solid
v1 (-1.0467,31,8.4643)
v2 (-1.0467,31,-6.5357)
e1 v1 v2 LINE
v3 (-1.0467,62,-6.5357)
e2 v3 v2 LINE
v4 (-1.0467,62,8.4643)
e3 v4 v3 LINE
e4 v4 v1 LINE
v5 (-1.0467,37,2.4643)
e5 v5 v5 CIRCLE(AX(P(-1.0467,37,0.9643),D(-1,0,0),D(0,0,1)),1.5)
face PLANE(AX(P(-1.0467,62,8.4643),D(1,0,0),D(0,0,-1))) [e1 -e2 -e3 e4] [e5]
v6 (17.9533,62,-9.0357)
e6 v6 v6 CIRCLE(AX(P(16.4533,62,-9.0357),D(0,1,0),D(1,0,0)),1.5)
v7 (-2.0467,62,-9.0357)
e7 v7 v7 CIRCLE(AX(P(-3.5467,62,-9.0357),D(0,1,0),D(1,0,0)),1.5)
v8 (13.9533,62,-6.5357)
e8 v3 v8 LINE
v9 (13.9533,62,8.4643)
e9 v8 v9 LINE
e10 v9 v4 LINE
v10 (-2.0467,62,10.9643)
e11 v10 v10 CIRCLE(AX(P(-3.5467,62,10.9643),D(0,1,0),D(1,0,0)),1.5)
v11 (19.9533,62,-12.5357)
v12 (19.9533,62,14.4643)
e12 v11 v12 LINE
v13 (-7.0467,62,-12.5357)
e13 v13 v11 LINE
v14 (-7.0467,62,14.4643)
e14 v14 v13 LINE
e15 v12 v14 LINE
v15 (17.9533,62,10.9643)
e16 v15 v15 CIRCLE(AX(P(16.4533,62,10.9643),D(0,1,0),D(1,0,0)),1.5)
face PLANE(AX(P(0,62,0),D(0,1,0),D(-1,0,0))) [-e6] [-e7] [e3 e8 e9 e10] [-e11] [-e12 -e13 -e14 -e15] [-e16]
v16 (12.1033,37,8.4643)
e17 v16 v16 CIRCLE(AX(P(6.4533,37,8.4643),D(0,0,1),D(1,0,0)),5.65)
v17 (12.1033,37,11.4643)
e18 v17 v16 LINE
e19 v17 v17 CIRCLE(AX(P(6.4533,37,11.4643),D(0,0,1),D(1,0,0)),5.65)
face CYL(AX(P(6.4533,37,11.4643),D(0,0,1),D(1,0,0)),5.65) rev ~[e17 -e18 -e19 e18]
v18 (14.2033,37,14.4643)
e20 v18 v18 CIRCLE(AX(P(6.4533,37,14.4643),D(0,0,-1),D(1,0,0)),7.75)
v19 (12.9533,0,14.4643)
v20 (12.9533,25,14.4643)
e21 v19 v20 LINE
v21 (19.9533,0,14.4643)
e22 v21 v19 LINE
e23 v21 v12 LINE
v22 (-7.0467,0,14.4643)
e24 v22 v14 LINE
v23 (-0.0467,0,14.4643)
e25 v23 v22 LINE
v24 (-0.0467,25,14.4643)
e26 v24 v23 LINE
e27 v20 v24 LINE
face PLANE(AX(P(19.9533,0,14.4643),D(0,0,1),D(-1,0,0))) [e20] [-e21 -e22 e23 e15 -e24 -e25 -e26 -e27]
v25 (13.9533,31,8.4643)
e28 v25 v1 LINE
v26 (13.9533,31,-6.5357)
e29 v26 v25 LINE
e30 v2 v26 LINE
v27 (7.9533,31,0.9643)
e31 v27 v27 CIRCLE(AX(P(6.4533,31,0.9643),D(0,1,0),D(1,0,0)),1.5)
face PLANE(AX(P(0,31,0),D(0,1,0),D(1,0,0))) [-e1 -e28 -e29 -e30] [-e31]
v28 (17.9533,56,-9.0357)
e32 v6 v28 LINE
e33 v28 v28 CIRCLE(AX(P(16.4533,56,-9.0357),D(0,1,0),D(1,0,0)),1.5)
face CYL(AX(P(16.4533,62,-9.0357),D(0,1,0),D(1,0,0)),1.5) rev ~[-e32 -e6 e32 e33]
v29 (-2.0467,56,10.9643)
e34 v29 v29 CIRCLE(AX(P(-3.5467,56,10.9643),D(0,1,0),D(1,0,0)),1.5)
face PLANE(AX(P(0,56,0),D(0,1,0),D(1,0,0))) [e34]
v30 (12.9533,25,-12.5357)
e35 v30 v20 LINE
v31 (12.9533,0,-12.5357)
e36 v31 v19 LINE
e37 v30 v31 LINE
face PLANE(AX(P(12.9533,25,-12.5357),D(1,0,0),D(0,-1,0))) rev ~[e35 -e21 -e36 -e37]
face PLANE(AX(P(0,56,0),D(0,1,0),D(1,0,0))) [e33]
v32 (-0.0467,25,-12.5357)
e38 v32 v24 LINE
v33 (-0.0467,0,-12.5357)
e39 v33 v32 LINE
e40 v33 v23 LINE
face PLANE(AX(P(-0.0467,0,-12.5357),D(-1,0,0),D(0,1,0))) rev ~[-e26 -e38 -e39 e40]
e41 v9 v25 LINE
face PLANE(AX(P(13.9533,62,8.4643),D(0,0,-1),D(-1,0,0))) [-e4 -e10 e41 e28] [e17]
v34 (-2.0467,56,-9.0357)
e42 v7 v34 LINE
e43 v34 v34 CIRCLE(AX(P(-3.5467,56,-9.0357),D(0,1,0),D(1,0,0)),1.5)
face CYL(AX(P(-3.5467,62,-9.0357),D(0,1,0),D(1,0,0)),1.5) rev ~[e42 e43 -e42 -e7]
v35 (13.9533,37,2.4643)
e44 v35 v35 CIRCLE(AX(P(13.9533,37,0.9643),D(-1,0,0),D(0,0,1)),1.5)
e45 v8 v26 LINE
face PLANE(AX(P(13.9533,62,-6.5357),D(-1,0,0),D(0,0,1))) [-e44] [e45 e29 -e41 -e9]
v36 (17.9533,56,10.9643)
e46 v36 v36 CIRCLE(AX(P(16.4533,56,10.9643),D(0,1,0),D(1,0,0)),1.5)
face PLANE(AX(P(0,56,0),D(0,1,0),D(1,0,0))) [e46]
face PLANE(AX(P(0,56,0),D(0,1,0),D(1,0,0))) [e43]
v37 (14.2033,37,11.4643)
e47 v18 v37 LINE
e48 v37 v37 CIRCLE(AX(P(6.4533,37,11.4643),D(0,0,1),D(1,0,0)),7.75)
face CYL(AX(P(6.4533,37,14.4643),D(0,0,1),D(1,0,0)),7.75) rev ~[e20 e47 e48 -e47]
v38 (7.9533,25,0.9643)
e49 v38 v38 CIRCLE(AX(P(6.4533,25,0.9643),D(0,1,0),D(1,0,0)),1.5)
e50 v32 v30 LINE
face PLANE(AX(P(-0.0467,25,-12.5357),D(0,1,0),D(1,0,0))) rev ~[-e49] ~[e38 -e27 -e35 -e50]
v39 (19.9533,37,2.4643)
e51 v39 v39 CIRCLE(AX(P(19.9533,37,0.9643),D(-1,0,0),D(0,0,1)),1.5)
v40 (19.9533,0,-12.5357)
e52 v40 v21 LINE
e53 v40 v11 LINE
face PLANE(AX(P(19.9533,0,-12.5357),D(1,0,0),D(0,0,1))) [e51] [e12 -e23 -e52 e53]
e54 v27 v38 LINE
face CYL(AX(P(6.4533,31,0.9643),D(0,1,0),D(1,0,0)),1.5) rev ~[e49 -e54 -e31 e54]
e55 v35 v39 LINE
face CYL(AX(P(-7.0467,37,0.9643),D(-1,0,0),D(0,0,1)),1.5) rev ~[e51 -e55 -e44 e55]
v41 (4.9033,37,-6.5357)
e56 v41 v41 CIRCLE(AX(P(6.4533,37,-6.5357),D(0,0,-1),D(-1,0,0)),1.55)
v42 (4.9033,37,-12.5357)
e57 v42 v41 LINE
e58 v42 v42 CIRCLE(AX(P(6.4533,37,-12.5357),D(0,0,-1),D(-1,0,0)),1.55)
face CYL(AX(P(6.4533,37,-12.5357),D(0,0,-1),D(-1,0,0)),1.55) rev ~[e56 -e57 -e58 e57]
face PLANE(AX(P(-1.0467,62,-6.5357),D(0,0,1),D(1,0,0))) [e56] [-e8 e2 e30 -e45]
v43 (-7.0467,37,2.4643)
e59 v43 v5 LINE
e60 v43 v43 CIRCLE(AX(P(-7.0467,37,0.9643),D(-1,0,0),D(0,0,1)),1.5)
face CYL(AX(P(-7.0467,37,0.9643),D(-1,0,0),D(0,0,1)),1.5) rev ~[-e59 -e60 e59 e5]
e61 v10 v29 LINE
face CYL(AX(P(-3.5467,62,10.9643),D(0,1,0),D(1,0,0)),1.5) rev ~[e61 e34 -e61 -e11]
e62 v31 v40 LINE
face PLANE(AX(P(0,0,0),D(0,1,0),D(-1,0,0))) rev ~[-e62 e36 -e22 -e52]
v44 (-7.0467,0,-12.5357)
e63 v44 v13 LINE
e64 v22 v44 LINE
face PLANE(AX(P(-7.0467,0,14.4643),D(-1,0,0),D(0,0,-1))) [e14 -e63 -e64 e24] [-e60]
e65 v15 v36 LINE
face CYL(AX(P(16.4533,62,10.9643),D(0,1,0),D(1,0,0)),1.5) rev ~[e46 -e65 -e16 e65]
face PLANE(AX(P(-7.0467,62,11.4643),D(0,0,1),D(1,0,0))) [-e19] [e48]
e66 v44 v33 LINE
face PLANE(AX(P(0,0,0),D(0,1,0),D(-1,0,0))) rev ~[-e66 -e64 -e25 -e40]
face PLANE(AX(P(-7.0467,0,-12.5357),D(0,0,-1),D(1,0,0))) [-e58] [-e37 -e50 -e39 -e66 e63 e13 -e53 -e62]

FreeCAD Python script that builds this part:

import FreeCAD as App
import Part
import Sketcher
from FreeCAD import Vector
Q = App.Units.Quantity


def add_polygon(sketch, points):
    """Adds a closed chain of lines whose ends are joined by coincident constraints."""
    first, n = sketch.GeometryCount, len(points)
    for a, b in zip(points, points[1:] + points[:1]):
        sketch.addGeometry(Part.LineSegment(App.Vector(*a, 0), App.Vector(*b, 0)), False)
    for i in range(n):
        sketch.addConstraint(Sketcher.Constraint("Coincident", first + i, 2, first + (i + 1) % n, 1))

doc = App.newDocument("Part")
body = doc.addObject("PartDesign::Body", "Body")

# Sketch on XZ plane
sketch1 = body.newObject("Sketcher::SketchObject", "Sketch")
sketch1.AttachmentSupport = (doc.getObject("XZ_Plane"), [""])
sketch1.MapMode = "FlatFace"
add_polygon(sketch1, [(-7.0467, 14.4643), (19.9533, 14.4643), (19.9533, -12.5357), (-7.0467, -12.5357)])  # lines 0-3
sketch1.addConstraint([
    Sketcher.Constraint("Horizontal", 0),
    Sketcher.Constraint("Vertical", 1),
    Sketcher.Constraint("Horizontal", 2),
    Sketcher.Constraint("Vertical", 3),
    Sketcher.Constraint("Equal", 2, 1),
    Sketcher.Constraint("DistanceX", 0, 1, 0, 2, Q("27 mm")),
    Sketcher.Constraint("DistanceX", -1, 1, 0, 2, Q("19.9533 mm")),
    Sketcher.Constraint("DistanceY", -1, 1, 0, 2, Q("14.4643 mm")),
])
pad1 = body.newObject("PartDesign::Pad", "Pad")
pad1.Profile = sketch1
pad1.Length = 62
pad1.Reversed = True

# Sketch on XZ plane
sketch2 = body.newObject("Sketcher::SketchObject", "Sketch001")
sketch2.AttachmentSupport = (doc.getObject("XZ_Plane"), [""])
sketch2.MapMode = "FlatFace"
sketch2.AttachmentOffset = App.Placement(Vector(0, 0, -62), App.Rotation())
add_polygon(sketch2, [(13.9533, -6.5357), (-1.0467, -6.5357), (-1.0467, 8.4643), (13.9533, 8.4643)])  # lines 0-3
sketch2.addConstraint([
    Sketcher.Constraint("Horizontal", 0),
    Sketcher.Constraint("Vertical", 1),
    Sketcher.Constraint("Horizontal", 2),
    Sketcher.Constraint("Vertical", 3),
    Sketcher.Constraint("Equal", 2, 1),
    Sketcher.Constraint("DistanceX", 0, 2, 0, 1, Q("15 mm")),
    Sketcher.Constraint("DistanceX", 0, 2, -1, 1, Q("1.0467 mm")),
    Sketcher.Constraint("DistanceY", 0, 2, -1, 1, Q("6.5357 mm")),
])
pocket1 = body.newObject("PartDesign::Pocket", "Pocket")
pocket1.Profile = sketch2
pocket1.Length = 31
pocket1.Reversed = True

# Sketch on XY plane
sketch3 = body.newObject("Sketcher::SketchObject", "Sketch002")
sketch3.AttachmentSupport = (doc.getObject("XY_Plane"), [""])
sketch3.MapMode = "FlatFace"
sketch3.AttachmentOffset = App.Placement(Vector(0, 0, -12.5357), App.Rotation())
add_polygon(sketch3, [(12.9533, 0), (-0.0467, 0), (-0.0467, 25), (12.9533, 25)])  # lines 0-3
sketch3.addConstraint([
    Sketcher.Constraint("Horizontal", 0),
    Sketcher.Constraint("Vertical", 1),
    Sketcher.Constraint("Horizontal", 2),
    Sketcher.Constraint("Vertical", 3),
    Sketcher.Constraint("PointOnObject", 0, 2, -1),
    Sketcher.Constraint("DistanceY", 1, 1, 1, 2, Q("25 mm")),
    Sketcher.Constraint("DistanceX", 0, 2, 0, 1, Q("13 mm")),
    Sketcher.Constraint("DistanceX", 0, 2, -1, 1, Q("0.0467 mm")),
])
pocket2 = body.newObject("PartDesign::Pocket", "Pocket001")
pocket2.Profile = sketch3
pocket2.Length = 30
pocket2.Reversed = True

# Sketch on XY plane
sketch4 = body.newObject("Sketcher::SketchObject", "Sketch003")
sketch4.AttachmentSupport = (doc.getObject("XY_Plane"), [""])
sketch4.MapMode = "FlatFace"
sketch4.AttachmentOffset = App.Placement(Vector(0, 0, -12.5357), App.Rotation())
sketch4.addGeometry(Part.Circle(Vector(6.4533, 37, 0), Vector(0, 0, 1), 1.55), False)
sketch4.addConstraint([
    Sketcher.Constraint("Diameter", 0, Q("3.1 mm")),
    Sketcher.Constraint("DistanceY", -1, 1, 0, 3, Q("37 mm")),
    Sketcher.Constraint("DistanceX", -1, 1, 0, 3, Q("6.4533 mm")),
])
pocket3 = body.newObject("PartDesign::Pocket", "Pocket002")
pocket3.Profile = sketch4
pocket3.Length = 7
pocket3.Reversed = True

# Sketch on XY plane
sketch5 = body.newObject("Sketcher::SketchObject", "Sketch004")
sketch5.AttachmentSupport = (doc.getObject("XY_Plane"), [""])
sketch5.MapMode = "FlatFace"
sketch5.AttachmentOffset = App.Placement(Vector(0, 0, 14.4643), App.Rotation())
sketch5.addGeometry(Part.Circle(Vector(6.4533, 37, 0), Vector(0, 0, 1), 7.75), False)
sketch5.addConstraint([
    Sketcher.Constraint("Diameter", 0, Q("15.5 mm")),
    Sketcher.Constraint("DistanceY", -1, 1, 0, 3, Q("37 mm")),
    Sketcher.Constraint("DistanceX", -1, 1, 0, 3, Q("6.4533 mm")),
])
pocket4 = body.newObject("PartDesign::Pocket", "Pocket003")
pocket4.Profile = sketch5
pocket4.Length = 3

# Sketch on XY plane
sketch6 = body.newObject("Sketcher::SketchObject", "Sketch005")
sketch6.AttachmentSupport = (doc.getObject("XY_Plane"), [""])
sketch6.MapMode = "FlatFace"
sketch6.AttachmentOffset = App.Placement(Vector(0, 0, 11.4643), App.Rotation())
sketch6.addGeometry(Part.Circle(Vector(6.4533, 37, 0), Vector(0, 0, 1), 5.65), False)
sketch6.addConstraint([
    Sketcher.Constraint("Diameter", 0, Q("11.3 mm")),
    Sketcher.Constraint("DistanceY", -1, 1, 0, 3, Q("37 mm")),
    Sketcher.Constraint("DistanceX", -1, 1, 0, 3, Q("6.4533 mm")),
])
pocket5 = body.newObject("PartDesign::Pocket", "Pocket004")
pocket5.Profile = sketch6
pocket5.Length = 3

# Sketch on YZ plane
sketch7 = body.newObject("Sketcher::SketchObject", "Sketch006")
sketch7.AttachmentSupport = (doc.getObject("YZ_Plane"), [""])
sketch7.MapMode = "FlatFace"
sketch7.AttachmentOffset = App.Placement(Vector(0, 0, -7.0467), App.Rotation())
sketch7.addGeometry(Part.Circle(Vector(37, 0.9643, 0), Vector(0, 0, 1), 1.5), False)
sketch7.addConstraint([
    Sketcher.Constraint("Diameter", 0, Q("3 mm")),
    Sketcher.Constraint("DistanceX", -1, 1, 0, 3, Q("37 mm")),
    Sketcher.Constraint("DistanceY", -1, 1, 0, 3, Q("0.9643 mm")),
])
pocket6 = body.newObject("PartDesign::Pocket", "Pocket005")
pocket6.Profile = sketch7
pocket6.Type = "ThroughAll"
pocket6.Reversed = True

# Sketch on XZ plane
sketch8 = body.newObject("Sketcher::SketchObject", "Sketch007")
sketch8.AttachmentSupport = (doc.getObject("XZ_Plane"), [""])
sketch8.MapMode = "FlatFace"
sketch8.AttachmentOffset = App.Placement(Vector(0, 0, -62), App.Rotation())
sketch8.addGeometry([
    Part.Circle(Vector(-3.5467, -9.0357, 0), Vector(0, 0, 1), 1.5),
    Part.Circle(Vector(16.4533, -9.0357, 0), Vector(0, 0, 1), 1.5),
    Part.Circle(Vector(-3.5467, 10.9643, 0), Vector(0, 0, 1), 1.5),
    Part.Circle(Vector(16.4533, 10.9643, 0), Vector(0, 0, 1), 1.5),
], False)
sketch8.addConstraint([
    Sketcher.Constraint("Equal", 0, 1),
    Sketcher.Constraint("Equal", 1, 2),
    Sketcher.Constraint("Equal", 2, 3),
    Sketcher.Constraint("Horizontal", 0, 3, 1, 3),
    Sketcher.Constraint("Horizontal", 2, 3, 3, 3),
    Sketcher.Constraint("Vertical", 0, 3, 2, 3),
    Sketcher.Constraint("Vertical", 1, 3, 3, 3),
    Sketcher.Constraint("Diameter", 0, Q("3 mm")),
    Sketcher.Constraint("DistanceX", 0, 3, 1, 3, Q("20 mm")),
    Sketcher.Constraint("DistanceY", 0, 3, 2, 3, Q("20 mm")),
    Sketcher.Constraint("DistanceX", 0, 3, -1, 1, Q("3.5467 mm")),
    Sketcher.Constraint("DistanceY", 0, 3, -1, 1, Q("9.0357 mm")),
])
pocket7 = body.newObject("PartDesign::Pocket", "Pocket006")
pocket7.Profile = sketch8
pocket7.Length = 6
pocket7.Reversed = True

# Sketch on XZ plane
sketch9 = body.newObject("Sketcher::SketchObject", "Sketch008")
sketch9.AttachmentSupport = (doc.getObject("XZ_Plane"), [""])
sketch9.MapMode = "FlatFace"
sketch9.AttachmentOffset = App.Placement(Vector(0, 0, -31), App.Rotation())
sketch9.addGeometry(Part.Circle(Vector(6.4533, 0.9643, 0), Vector(0, 0, 1), 1.5), False)
sketch9.addConstraint([
    Sketcher.Constraint("Diameter", 0, Q("3 mm")),
    Sketcher.Constraint("DistanceX", -1, 1, 0, 3, Q("6.4533 mm")),
    Sketcher.Constraint("DistanceY", -1, 1, 0, 3, Q("0.9643 mm")),
])
pocket8 = body.newObject("PartDesign::Pocket", "Pocket007")
pocket8.Profile = sketch9
pocket8.Type = "ThroughAll"
pocket8.Reversed = True

doc.recompute()
